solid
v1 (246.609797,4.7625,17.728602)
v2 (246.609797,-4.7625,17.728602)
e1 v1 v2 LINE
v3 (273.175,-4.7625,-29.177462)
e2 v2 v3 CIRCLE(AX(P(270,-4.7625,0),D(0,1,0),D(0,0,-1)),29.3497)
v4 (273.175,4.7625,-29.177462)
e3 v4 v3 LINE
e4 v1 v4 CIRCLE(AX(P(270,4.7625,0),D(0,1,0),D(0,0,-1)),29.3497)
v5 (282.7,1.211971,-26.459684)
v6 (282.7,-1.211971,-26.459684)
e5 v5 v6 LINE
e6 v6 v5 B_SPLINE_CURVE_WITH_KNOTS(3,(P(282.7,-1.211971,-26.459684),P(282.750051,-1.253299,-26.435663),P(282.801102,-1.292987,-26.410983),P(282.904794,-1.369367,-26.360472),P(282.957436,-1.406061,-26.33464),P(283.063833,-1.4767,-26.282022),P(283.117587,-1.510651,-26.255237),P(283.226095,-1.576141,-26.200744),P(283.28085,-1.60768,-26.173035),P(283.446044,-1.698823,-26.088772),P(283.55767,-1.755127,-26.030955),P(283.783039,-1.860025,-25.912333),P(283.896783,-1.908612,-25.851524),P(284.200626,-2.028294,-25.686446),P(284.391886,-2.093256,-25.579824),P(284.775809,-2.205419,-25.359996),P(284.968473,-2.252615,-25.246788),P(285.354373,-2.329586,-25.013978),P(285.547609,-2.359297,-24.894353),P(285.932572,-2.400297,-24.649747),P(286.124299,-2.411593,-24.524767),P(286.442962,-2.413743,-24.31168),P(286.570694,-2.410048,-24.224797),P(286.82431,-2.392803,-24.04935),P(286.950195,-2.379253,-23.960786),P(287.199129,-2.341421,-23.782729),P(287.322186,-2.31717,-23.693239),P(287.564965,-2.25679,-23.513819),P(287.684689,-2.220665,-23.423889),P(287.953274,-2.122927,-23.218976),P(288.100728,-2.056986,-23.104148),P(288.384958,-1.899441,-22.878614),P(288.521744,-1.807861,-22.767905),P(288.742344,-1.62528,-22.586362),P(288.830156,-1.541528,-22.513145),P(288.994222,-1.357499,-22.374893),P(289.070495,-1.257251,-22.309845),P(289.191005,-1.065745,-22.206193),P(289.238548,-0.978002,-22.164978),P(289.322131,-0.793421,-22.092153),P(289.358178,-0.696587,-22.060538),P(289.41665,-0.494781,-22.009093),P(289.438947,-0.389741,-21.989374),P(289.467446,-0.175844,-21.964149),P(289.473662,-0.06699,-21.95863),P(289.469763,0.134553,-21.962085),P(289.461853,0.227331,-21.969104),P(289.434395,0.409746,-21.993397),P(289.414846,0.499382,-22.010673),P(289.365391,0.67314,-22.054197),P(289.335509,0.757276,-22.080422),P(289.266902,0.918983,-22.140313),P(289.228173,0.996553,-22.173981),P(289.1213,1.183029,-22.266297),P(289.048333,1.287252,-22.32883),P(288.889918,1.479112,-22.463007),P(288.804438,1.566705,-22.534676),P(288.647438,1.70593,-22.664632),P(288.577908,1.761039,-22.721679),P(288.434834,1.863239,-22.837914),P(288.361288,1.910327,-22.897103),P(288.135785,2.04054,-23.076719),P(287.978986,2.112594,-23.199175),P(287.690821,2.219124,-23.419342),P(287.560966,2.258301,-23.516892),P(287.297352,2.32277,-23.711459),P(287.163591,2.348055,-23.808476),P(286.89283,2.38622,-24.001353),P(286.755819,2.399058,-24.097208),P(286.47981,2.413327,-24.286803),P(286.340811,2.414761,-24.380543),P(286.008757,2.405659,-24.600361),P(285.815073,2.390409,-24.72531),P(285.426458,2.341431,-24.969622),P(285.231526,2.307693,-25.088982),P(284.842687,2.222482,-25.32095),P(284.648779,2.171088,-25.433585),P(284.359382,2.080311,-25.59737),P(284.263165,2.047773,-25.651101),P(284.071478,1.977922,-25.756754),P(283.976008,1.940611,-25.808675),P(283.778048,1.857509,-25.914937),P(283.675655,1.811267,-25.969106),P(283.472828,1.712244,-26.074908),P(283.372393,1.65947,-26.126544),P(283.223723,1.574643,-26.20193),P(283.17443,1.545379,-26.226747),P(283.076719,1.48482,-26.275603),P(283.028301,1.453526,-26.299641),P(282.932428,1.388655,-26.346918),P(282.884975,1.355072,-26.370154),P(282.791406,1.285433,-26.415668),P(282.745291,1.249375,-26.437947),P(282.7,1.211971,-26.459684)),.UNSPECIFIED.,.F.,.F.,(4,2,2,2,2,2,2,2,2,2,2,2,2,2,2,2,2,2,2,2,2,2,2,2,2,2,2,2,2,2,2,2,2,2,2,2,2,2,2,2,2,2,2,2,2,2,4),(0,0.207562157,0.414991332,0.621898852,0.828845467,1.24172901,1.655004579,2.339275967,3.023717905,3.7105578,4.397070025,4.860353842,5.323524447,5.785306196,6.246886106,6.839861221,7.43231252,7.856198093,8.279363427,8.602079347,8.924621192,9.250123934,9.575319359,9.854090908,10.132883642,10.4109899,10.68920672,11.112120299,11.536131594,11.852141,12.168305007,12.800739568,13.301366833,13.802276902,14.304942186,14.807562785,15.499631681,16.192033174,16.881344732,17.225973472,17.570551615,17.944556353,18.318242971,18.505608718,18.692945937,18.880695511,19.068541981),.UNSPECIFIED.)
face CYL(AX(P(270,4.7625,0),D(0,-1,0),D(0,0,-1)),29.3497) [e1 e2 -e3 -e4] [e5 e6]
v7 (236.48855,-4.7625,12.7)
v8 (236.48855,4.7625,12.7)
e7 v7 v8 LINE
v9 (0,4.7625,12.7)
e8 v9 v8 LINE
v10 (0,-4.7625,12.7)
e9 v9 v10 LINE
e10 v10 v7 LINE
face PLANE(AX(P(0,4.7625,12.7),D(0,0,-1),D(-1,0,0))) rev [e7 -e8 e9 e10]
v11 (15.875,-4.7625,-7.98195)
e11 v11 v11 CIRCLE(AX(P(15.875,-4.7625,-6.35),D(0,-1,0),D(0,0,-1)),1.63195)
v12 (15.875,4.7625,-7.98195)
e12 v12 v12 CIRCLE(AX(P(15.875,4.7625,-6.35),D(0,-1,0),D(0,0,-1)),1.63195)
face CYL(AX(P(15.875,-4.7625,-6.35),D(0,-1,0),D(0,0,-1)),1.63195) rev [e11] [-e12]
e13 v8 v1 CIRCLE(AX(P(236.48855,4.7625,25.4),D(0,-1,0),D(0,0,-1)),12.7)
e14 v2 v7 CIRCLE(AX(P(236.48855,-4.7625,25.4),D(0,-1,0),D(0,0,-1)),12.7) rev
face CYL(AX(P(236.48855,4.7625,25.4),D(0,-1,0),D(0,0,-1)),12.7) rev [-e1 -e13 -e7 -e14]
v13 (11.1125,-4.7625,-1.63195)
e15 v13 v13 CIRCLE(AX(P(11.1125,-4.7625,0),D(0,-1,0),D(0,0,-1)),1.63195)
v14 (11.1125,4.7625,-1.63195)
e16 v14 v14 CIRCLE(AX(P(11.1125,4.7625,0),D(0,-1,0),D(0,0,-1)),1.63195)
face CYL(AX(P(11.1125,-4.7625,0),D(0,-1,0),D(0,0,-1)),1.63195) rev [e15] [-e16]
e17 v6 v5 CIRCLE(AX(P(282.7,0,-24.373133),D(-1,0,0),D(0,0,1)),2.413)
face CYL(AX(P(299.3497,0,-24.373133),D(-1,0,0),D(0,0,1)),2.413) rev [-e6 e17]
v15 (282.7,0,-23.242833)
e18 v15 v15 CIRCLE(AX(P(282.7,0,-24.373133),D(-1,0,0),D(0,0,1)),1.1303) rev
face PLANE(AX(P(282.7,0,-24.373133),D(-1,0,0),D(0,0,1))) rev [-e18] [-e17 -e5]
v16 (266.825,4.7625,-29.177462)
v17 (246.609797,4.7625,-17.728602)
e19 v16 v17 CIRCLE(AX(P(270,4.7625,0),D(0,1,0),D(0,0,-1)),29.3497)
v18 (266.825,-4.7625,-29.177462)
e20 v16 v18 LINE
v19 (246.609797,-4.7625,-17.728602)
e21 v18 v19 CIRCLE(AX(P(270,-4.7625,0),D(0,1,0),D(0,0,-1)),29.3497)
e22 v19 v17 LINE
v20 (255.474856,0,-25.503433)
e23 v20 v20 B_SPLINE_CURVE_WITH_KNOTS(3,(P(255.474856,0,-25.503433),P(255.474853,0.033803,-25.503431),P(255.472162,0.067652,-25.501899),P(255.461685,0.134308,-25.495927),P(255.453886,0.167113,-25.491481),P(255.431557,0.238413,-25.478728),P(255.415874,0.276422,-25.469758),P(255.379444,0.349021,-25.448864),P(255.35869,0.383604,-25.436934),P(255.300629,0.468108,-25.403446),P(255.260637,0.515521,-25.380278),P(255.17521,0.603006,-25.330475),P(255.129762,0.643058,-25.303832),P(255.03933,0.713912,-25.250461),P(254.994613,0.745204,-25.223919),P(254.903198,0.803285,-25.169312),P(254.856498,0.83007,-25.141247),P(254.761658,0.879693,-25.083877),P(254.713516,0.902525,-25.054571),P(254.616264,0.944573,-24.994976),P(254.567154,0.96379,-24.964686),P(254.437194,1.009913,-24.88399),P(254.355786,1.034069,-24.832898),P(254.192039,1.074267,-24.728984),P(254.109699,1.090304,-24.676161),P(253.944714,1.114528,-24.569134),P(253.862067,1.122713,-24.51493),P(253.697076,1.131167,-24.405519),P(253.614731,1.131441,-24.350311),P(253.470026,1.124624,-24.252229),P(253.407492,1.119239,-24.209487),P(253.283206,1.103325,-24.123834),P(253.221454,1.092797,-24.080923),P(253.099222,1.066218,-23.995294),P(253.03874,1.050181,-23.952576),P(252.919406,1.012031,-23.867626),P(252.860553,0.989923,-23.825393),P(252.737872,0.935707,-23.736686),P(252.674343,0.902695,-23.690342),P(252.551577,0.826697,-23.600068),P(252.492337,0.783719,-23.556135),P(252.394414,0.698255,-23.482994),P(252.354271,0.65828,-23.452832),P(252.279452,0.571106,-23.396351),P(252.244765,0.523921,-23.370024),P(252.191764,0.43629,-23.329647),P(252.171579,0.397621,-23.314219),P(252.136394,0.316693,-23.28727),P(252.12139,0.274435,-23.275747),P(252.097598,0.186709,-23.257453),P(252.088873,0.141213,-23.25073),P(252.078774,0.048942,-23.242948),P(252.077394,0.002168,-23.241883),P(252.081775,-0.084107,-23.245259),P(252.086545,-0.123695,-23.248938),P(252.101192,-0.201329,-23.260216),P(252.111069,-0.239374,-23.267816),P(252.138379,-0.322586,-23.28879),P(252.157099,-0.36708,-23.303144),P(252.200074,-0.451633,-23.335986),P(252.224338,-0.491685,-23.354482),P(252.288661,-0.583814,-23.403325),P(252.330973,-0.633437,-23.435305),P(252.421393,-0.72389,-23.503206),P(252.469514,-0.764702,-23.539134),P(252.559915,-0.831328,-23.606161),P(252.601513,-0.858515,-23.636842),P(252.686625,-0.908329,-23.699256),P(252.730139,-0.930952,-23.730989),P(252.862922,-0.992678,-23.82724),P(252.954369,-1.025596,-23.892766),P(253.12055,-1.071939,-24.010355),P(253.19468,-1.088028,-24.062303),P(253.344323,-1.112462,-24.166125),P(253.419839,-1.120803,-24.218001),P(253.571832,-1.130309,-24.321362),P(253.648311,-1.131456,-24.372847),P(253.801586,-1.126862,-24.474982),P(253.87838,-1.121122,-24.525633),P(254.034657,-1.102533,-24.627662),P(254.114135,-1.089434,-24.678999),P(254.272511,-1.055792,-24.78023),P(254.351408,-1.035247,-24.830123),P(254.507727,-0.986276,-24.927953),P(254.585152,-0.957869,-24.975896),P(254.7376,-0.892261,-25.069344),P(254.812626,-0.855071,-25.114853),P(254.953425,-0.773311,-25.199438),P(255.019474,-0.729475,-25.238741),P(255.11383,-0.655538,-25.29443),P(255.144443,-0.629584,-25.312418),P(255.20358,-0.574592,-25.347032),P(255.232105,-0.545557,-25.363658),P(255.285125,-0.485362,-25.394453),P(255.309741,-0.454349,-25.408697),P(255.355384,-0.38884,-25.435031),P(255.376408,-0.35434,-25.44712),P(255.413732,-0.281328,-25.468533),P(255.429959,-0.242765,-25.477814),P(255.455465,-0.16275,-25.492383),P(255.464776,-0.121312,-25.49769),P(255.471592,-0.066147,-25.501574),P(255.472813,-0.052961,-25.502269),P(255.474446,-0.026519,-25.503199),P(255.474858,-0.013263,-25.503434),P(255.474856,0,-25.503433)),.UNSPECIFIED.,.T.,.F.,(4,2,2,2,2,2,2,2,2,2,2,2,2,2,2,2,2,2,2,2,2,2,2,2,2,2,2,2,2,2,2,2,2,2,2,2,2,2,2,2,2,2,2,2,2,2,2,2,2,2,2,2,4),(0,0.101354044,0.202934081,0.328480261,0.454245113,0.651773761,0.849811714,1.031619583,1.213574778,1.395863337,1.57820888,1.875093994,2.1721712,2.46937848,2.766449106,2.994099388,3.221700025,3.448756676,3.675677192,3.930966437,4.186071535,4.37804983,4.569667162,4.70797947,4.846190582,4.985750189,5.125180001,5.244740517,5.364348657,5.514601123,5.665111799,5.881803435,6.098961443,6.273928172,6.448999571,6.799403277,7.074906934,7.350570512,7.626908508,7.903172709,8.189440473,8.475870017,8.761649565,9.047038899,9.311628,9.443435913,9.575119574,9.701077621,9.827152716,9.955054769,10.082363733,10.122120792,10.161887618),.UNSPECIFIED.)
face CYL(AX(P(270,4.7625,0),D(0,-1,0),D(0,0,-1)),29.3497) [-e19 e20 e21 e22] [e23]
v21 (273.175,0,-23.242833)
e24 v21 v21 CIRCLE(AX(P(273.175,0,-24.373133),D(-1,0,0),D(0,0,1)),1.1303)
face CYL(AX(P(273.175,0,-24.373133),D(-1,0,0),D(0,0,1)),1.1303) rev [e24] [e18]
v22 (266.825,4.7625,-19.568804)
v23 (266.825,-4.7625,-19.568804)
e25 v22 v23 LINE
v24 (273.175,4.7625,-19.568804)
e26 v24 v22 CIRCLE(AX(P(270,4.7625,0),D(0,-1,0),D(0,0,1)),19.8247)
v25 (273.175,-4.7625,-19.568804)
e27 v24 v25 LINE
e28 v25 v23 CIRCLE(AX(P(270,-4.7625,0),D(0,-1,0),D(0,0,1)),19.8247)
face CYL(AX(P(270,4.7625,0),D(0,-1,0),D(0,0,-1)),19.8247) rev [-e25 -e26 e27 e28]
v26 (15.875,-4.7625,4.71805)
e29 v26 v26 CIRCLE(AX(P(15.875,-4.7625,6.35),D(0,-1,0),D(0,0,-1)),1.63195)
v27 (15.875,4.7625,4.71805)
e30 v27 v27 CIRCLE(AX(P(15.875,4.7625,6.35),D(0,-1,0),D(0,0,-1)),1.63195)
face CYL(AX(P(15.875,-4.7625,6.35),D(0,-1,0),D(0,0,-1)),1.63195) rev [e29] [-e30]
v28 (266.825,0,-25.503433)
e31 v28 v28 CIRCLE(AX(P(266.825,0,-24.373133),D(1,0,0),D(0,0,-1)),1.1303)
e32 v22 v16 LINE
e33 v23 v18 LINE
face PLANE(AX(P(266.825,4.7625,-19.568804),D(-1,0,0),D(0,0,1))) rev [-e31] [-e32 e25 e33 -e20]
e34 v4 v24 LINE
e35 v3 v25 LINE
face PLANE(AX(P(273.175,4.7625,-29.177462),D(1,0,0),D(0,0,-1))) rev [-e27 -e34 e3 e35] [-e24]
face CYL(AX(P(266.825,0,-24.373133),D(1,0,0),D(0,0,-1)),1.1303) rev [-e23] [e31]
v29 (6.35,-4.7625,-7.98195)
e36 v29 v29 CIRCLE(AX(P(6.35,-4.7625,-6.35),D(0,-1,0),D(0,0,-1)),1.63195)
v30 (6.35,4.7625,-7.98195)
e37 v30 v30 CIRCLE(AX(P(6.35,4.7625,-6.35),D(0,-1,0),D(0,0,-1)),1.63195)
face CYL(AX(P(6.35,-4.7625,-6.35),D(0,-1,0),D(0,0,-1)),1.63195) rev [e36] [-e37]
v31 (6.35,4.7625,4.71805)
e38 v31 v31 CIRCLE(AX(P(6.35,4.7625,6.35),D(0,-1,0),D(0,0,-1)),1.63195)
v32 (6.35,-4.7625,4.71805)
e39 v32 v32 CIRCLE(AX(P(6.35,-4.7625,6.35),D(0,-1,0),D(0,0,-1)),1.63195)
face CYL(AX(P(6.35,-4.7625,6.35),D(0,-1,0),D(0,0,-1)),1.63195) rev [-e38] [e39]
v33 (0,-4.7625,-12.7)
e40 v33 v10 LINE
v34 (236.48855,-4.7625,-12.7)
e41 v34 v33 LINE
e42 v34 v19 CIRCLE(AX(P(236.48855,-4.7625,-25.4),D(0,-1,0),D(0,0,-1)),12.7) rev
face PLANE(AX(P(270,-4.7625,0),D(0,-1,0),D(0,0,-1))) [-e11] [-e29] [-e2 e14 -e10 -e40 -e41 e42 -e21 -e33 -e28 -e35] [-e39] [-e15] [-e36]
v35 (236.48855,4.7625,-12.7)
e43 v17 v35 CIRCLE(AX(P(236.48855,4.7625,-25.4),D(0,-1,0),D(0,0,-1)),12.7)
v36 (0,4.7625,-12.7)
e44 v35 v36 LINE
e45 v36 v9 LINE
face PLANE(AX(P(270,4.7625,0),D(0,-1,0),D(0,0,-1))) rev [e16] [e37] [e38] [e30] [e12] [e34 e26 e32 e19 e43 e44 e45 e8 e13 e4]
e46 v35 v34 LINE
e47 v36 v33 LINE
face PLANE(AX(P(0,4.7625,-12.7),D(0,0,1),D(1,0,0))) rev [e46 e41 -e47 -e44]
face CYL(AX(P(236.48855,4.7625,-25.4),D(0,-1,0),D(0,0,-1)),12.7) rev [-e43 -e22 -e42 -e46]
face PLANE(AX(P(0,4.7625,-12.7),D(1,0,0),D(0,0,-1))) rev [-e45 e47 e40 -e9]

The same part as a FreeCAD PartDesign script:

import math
import FreeCAD as App
import Part
import Sketcher

V = App.Vector
Q = App.Units.Quantity


def edges_at(feature, points):
    """Names of the edges that pass closest to the given points."""
    edges = feature.Shape.Edges
    near = lambda p: min(range(len(edges)), key=lambda i: edges[i].distToShape(Part.Vertex(*p))[0])
    return sorted({f"Edge{near(p) + 1}" for p in points})

doc = App.newDocument("Part")
body = doc.addObject("PartDesign::Body", "Body")

# Sketch on XZ plane
sketch1 = body.newObject("Sketcher::SketchObject", "Sketch")
sketch1.AttachmentSupport = (doc.getObject("XZ_Plane"), [""])
sketch1.MapMode = "FlatFace"
sketch1.addGeometry(Part.LineSegment(V(267, -20, 0), V(267, -29, 0)), False)
sketch1.addGeometry(Part.ArcOfCircle(Part.Circle(V(270, 0, 0), V(0, 0, 1), 29), math.radians(-154), math.radians(-96)), False)
sketch1.addGeometry(Part.LineSegment(V(244, -13, 0), V(0, -13, 0)), False)
sketch1.addGeometry(Part.LineSegment(V(0, -13, 0), V(0, 13, 0)), False)
sketch1.addGeometry(Part.LineSegment(V(0, 13, 0), V(244, 13, 0)), False)
sketch1.addGeometry(Part.ArcOfCircle(Part.Circle(V(270, 0, 0), V(0, 0, 1), 29), math.radians(-84), math.radians(154)), False)
sketch1.addGeometry(Part.LineSegment(V(273, -29, 0), V(273, -20, 0)), False)
sketch1.addGeometry(Part.ArcOfCircle(Part.Circle(V(270, 0, 0), V(0, 0, 1), 20), math.radians(-81), math.radians(261)), False)
sketch1.addConstraint(Sketcher.Constraint("Coincident", 0, 2, 1, 2))
sketch1.addConstraint(Sketcher.Constraint("Coincident", 1, 1, 2, 1))
sketch1.addConstraint(Sketcher.Constraint("Coincident", 2, 2, 3, 1))
sketch1.addConstraint(Sketcher.Constraint("Coincident", 3, 2, 4, 1))
sketch1.addConstraint(Sketcher.Constraint("Coincident", 4, 2, 5, 2))
sketch1.addConstraint(Sketcher.Constraint("Coincident", 5, 1, 6, 1))
sketch1.addConstraint(Sketcher.Constraint("Coincident", 6, 2, 7, 1))
sketch1.addConstraint(Sketcher.Constraint("Coincident", 7, 2, 0, 1))
sketch1.addConstraint(Sketcher.Constraint("Vertical", 0))
sketch1.addConstraint(Sketcher.Constraint("Horizontal", 2))
sketch1.addConstraint(Sketcher.Constraint("Vertical", 3))
sketch1.addConstraint(Sketcher.Constraint("Horizontal", 4))
sketch1.addConstraint(Sketcher.Constraint("Vertical", 6))
sketch1.addConstraint(Sketcher.Constraint("Coincident", 5, 3, 1, 3))
sketch1.addConstraint(Sketcher.Constraint("Coincident", 7, 3, 1, 3))
sketch1.addConstraint(Sketcher.Constraint("Equal", 1, 5))
sketch1.addConstraint(Sketcher.Constraint("Symmetric", 2, 2, 3, 2, -1, 1))
sketch1.addConstraint(Sketcher.Constraint("PointOnObject", 1, 3, -1))
sketch1.addConstraint(Sketcher.Constraint("Horizontal", 0, 2, 5, 1))
sketch1.addConstraint(Sketcher.Constraint("DistanceY", 3, 1, 3, 2, Q("1 in")))
sketch1.addConstraint(Sketcher.Constraint("Radius", 1, Q("1.1555 in")))
sketch1.addConstraint(Sketcher.Constraint("Radius", 7, Q("0.7805 in")))
sketch1.addConstraint(Sketcher.Constraint("DistanceX", 0, 2, 5, 1, Q("0.25 in")))
sketch1.addConstraint(Sketcher.Constraint("DistanceX", -1, 1, 1, 3, 270.0))
pad1 = body.newObject("PartDesign::Pad", "Pad")
pad1.Profile = sketch1
pad1.Length = Q("0.375 in")
pad1.Midplane = True

# Sketch on XZ plane
sketch2 = body.newObject("Sketcher::SketchObject", "Sketch001")
sketch2.AttachmentSupport = (doc.getObject("XZ_Plane"), [""])
sketch2.MapMode = "FlatFace"
sketch2.addGeometry(Part.LineSegment(V(0, -24.4, 0), V(266.8, -24.4, 0)), False)
sketch2.addGeometry(Part.LineSegment(V(266.8, -24.4, 0), V(266.8, -25.5, 0)), False)
sketch2.addGeometry(Part.LineSegment(V(266.8, -25.5, 0), V(0, -25.5, 0)), False)
sketch2.addGeometry(Part.LineSegment(V(0, -25.5, 0), V(0, -24.4, 0)), False)
sketch2.addGeometry(Part.LineSegment(V(266.8, -24.4, 0), V(0, -24.4, 0)), True)  # axis
sketch2.addConstraint(Sketcher.Constraint("Coincident", 0, 2, 1, 1))
sketch2.addConstraint(Sketcher.Constraint("Coincident", 1, 2, 2, 1))
sketch2.addConstraint(Sketcher.Constraint("Coincident", 2, 2, 3, 1))
sketch2.addConstraint(Sketcher.Constraint("Coincident", 3, 2, 0, 1))
sketch2.addConstraint(Sketcher.Constraint("Horizontal", 0))
sketch2.addConstraint(Sketcher.Constraint("Vertical", 1))
sketch2.addConstraint(Sketcher.Constraint("Horizontal", 2))
sketch2.addConstraint(Sketcher.Constraint("Vertical", 3))
sketch2.addConstraint(Sketcher.Constraint("Horizontal", 4))
sketch2.addConstraint(Sketcher.Constraint("Coincident", 4, 1, 0, 2))
sketch2.addConstraint(Sketcher.Constraint("PointOnObject", 2, 2, -2))
sketch2.addConstraint(Sketcher.Constraint("PointOnObject", 4, 2, -2))
sketch2.addConstraint(Sketcher.Constraint("DistanceY", 1, 2, 1, 1, Q("0.0445 in")))
sketch2.addConstraint(Sketcher.Constraint("DistanceX", 0, 1, 0, 2, 266.825))
sketch2.addConstraint(Sketcher.Constraint("DistanceY", 0, 2, -1, 1, 24.373133))
groove = body.newObject("PartDesign::Groove", "Groove")
groove.Profile = sketch2
groove.ReferenceAxis = (sketch2, ["Axis0"])
groove.Angle = 360

# Sketch on YZ plane
sketch3 = body.newObject("Sketcher::SketchObject", "Sketch002")
sketch3.AttachmentSupport = (doc.getObject("YZ_Plane"), [""])
sketch3.MapMode = "FlatFace"
sketch3.AttachmentOffset = App.Placement(V(0, 0, 273.175), App.Rotation())
sketch3.addGeometry(Part.Circle(V(0, -24.4, 0), V(0, 0, 1), 1.1), False)
sketch3.addConstraint(Sketcher.Constraint("PointOnObject", 0, 3, -2))
sketch3.addConstraint(Sketcher.Constraint("Diameter", 0, Q("0.089 in")))
sketch3.addConstraint(Sketcher.Constraint("DistanceY", 0, 3, -1, 1, 24.373133))
doc.recompute()
hole = body.newObject("PartDesign::Hole", "Hole")
hole.Profile = sketch3
hole.ThreadType = "None"
hole.Diameter = Q("0.089 in")
hole.DepthType = "ThroughAll"
hole.Reversed = True
doc.recompute()

fillet = body.newObject("PartDesign::Fillet", "Fillet")
fillet.Base = (hole, edges_at(hole, [(243.54, 0, -12.7), (243.54, 0, 12.7)]))
fillet.Radius = Q("0.5 in")

# Sketch on YZ plane
sketch4 = body.newObject("Sketcher::SketchObject", "Sketch003")
sketch4.AttachmentSupport = (doc.getObject("YZ_Plane"), [""])
sketch4.MapMode = "FlatFace"
sketch4.AttachmentOffset = App.Placement(V(0, 0, 282.7), App.Rotation())
sketch4.addGeometry(Part.Circle(V(0, -24.4, 0), V(0, 0, 1), 2.4), False)
sketch4.addConstraint(Sketcher.Constraint("PointOnObject", 0, 3, -2))
sketch4.addConstraint(Sketcher.Constraint("Diameter", 0, Q("0.19 in")))
sketch4.addConstraint(Sketcher.Constraint("DistanceY", 0, 3, -1, 1, 24.373133))
pocket1 = body.newObject("PartDesign::Pocket", "Pocket")
pocket1.Profile = sketch4
pocket1.Type = "ThroughAll"
pocket1.Reversed = True

# Sketch on XZ plane
sketch5 = body.newObject("Sketcher::SketchObject", "Sketch004")
sketch5.AttachmentSupport = (doc.getObject("XZ_Plane"), [""])
sketch5.MapMode = "FlatFace"
sketch5.AttachmentOffset = App.Placement(V(0, 0, 0.1875 * 25.4), App.Rotation())
sketch5.addGeometry(Part.Circle(V(6.3, 6.3, 0), V(0, 0, 1), 1.6), False)
sketch5.addGeometry(Part.Circle(V(15.9, -6.3, 0), V(0, 0, 1), 1.6), False)
sketch5.addGeometry(Part.Circle(V(15.9, 6.3, 0), V(0, 0, 1), 1.6), False)
sketch5.addGeometry(Part.Circle(V(11.1, 0, 0), V(0, 0, 1), 1.6), False)
sketch5.addGeometry(Part.Circle(V(6.3, -6.3, 0), V(0, 0, 1), 1.6), False)
sketch5.addConstraint(Sketcher.Constraint("Equal", 0, 1))
sketch5.addConstraint(Sketcher.Constraint("Equal", 1, 2))
sketch5.addConstraint(Sketcher.Constraint("Equal", 2, 3))
sketch5.addConstraint(Sketcher.Constraint("Equal", 3, 4))
sketch5.addConstraint(Sketcher.Constraint("Symmetric", 1, 3, 2, 3, -1))
sketch5.addConstraint(Sketcher.Constraint("Symmetric", 0, 3, 4, 3, -1))
sketch5.addConstraint(Sketcher.Constraint("PointOnObject", 3, 3, -1))
sketch5.addConstraint(Sketcher.Constraint("Horizontal", 0, 3, 2, 3))
sketch5.addConstraint(Sketcher.Constraint("Diameter", 0, Q("0.1285 in")))
sketch5.addConstraint(Sketcher.Constraint("DistanceY", 1, 3, 0, 3, Q("0.5 in")))
sketch5.addConstraint(Sketcher.Constraint("DistanceX", -1, 1, 0, 3, Q("0.25 in")))
sketch5.addConstraint(Sketcher.Constraint("DistanceX", -1, 1, 1, 3, Q("0.625 in")))
sketch5.addConstraint(Sketcher.Constraint("DistanceX", -1, 1, 3, 3, Q("0.4375 in")))
doc.recompute()
hole2 = body.newObject("PartDesign::Hole", "Hole001")
hole2.Profile = sketch5
hole2.ThreadType = "None"
hole2.Diameter = Q("0.1285 in")
hole2.DepthType = "ThroughAll"

doc.recompute()
